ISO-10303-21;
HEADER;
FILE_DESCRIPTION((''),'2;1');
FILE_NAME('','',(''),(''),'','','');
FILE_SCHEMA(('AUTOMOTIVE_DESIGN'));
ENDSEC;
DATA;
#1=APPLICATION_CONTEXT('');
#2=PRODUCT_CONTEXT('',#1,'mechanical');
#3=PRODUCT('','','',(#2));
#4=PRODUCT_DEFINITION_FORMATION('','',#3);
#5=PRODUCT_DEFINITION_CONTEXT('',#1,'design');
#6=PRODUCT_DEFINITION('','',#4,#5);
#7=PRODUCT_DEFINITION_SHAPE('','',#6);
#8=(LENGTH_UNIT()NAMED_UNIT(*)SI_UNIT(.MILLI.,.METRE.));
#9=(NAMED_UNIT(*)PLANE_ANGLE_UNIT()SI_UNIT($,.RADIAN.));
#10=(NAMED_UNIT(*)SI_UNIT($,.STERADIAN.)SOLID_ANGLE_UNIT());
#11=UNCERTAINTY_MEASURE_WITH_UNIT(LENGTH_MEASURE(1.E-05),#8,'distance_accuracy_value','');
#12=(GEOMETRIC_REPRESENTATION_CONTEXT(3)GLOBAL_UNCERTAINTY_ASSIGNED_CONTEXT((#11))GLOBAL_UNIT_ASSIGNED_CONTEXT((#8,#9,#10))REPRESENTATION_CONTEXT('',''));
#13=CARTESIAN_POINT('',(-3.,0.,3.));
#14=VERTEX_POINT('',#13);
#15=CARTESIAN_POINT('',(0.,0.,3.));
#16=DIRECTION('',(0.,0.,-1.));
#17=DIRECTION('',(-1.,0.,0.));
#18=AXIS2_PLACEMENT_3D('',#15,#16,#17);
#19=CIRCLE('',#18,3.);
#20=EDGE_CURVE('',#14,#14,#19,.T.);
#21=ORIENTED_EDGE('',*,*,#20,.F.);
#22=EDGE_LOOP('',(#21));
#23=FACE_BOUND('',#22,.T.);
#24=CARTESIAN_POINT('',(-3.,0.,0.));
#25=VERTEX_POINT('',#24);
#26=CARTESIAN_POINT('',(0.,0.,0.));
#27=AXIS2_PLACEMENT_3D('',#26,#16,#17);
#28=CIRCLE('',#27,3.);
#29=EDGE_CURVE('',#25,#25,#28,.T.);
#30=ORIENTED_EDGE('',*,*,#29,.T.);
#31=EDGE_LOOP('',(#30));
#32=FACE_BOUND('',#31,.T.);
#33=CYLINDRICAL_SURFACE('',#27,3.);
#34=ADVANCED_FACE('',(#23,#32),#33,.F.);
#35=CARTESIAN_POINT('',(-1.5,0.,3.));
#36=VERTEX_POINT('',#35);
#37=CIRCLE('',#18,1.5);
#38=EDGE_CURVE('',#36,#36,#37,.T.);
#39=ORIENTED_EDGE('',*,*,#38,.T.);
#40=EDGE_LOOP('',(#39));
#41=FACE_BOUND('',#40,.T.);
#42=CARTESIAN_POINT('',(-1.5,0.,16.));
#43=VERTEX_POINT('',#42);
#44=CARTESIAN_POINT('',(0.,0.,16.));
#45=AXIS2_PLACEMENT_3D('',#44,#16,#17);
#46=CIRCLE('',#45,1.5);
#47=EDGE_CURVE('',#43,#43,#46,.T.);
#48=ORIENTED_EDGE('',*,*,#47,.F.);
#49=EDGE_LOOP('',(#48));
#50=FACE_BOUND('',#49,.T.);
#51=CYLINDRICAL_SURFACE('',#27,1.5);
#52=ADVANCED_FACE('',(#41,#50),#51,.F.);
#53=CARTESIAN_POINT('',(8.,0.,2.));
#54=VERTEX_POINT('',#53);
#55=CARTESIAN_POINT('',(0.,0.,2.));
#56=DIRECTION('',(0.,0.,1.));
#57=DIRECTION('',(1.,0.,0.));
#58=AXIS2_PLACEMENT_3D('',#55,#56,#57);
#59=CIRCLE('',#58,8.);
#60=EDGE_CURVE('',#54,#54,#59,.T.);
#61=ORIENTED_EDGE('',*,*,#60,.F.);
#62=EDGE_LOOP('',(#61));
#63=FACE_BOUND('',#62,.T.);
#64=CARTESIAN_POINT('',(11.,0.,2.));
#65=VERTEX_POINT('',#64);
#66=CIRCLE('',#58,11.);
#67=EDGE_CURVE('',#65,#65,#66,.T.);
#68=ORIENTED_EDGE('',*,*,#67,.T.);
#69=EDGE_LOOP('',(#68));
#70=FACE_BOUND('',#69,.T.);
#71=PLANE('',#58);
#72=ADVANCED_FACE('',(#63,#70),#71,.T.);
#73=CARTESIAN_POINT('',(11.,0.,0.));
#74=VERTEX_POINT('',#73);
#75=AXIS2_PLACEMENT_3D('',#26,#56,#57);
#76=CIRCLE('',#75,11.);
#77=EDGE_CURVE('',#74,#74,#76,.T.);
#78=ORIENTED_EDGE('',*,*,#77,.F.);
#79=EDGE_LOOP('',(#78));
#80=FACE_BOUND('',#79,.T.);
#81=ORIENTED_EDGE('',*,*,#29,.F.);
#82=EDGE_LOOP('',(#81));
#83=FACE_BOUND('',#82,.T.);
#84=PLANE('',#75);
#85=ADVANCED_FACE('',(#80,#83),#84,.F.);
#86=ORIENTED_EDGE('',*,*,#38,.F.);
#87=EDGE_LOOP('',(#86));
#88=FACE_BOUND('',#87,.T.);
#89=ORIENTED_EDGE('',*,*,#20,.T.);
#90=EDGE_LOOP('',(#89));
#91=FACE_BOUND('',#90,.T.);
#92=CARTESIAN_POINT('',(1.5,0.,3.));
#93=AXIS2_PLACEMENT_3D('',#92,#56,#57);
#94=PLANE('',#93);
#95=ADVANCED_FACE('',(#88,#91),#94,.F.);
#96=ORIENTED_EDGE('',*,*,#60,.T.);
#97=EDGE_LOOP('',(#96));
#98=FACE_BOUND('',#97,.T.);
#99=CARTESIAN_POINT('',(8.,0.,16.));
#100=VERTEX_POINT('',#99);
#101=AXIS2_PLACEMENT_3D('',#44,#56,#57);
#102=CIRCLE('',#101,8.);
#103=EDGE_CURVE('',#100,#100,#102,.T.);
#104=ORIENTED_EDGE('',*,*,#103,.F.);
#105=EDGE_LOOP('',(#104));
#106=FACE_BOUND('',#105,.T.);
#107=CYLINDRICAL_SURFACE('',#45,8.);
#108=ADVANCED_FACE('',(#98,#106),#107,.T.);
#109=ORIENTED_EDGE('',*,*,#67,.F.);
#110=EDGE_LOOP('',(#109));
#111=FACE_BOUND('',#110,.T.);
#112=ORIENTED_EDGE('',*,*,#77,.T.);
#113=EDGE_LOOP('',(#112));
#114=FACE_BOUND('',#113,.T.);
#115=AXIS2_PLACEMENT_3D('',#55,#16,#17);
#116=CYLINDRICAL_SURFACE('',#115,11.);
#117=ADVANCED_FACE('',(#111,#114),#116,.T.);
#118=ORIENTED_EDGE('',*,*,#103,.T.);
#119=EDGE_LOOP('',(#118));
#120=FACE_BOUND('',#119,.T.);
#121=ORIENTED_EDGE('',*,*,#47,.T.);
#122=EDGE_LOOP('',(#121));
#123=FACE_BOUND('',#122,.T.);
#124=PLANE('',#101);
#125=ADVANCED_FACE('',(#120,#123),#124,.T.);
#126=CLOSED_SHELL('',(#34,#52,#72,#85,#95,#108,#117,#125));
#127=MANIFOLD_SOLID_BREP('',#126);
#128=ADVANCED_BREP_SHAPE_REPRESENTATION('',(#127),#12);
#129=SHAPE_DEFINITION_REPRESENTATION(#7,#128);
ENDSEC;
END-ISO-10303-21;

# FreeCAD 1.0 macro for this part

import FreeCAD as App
import Part
import Sketcher
from FreeCAD import Vector
Q = App.Units.Quantity

doc = App.newDocument("Part")
body = doc.addObject("PartDesign::Body", "Body")

sketch1 = body.newObject("Sketcher::SketchObject", "Sketch")
sketch1.AttachmentSupport = (doc.getObject("XY_Plane"), [""])
sketch1.MapMode = "FlatFace"
sketch1.addGeometry(Part.Circle(Vector(0, 0, 0), Vector(0, 0, 1), 11), False)
sketch1.addConstraint([
    Sketcher.Constraint("Coincident", 0, 3, -1, 1),
    Sketcher.Constraint("Diameter", 0, Q("22 mm")),
])
pad1 = body.newObject("PartDesign::Pad", "Pad")
pad1.Profile = sketch1
pad1.Length = 2

sketch2 = body.newObject("Sketcher::SketchObject", "Sketch001")
sketch2.AttachmentSupport = (doc.getObject("XY_Plane"), [""])
sketch2.MapMode = "FlatFace"
sketch2.AttachmentOffset = App.Placement(Vector(0, 0, 2), App.Rotation())
sketch2.addGeometry(Part.Circle(Vector(0, 0, 0), Vector(0, 0, 1), 8), False)
sketch2.addConstraint([
    Sketcher.Constraint("Coincident", 0, 3, -1, 1),
    Sketcher.Constraint("Diameter", 0, Q("16 mm")),
])
pad2 = body.newObject("PartDesign::Pad", "Pad001")
pad2.Profile = sketch2
pad2.Length = 14

sketch3 = body.newObject("Sketcher::SketchObject", "Sketch002")
sketch3.AttachmentSupport = (doc.getObject("XY_Plane"), [""])
sketch3.MapMode = "FlatFace"
sketch3.addGeometry(Part.Circle(Vector(0, 0, 0), Vector(0, 0, 1), 1.5), False)
sketch3.addConstraint([
    Sketcher.Constraint("Coincident", 0, 3, -1, 1),
    Sketcher.Constraint("Diameter", 0, Q("3 mm")),
])
doc.recompute()
hole = body.newObject("PartDesign::Hole", "Hole")
hole.Profile = sketch3
hole.ThreadType = "None"
hole.Diameter = 3
hole.DepthType = "ThroughAll"
hole.HoleCutType = "Counterbore"
hole.HoleCutDiameter = 6
hole.HoleCutDepth = 3
hole.Reversed = True

doc.recompute()
